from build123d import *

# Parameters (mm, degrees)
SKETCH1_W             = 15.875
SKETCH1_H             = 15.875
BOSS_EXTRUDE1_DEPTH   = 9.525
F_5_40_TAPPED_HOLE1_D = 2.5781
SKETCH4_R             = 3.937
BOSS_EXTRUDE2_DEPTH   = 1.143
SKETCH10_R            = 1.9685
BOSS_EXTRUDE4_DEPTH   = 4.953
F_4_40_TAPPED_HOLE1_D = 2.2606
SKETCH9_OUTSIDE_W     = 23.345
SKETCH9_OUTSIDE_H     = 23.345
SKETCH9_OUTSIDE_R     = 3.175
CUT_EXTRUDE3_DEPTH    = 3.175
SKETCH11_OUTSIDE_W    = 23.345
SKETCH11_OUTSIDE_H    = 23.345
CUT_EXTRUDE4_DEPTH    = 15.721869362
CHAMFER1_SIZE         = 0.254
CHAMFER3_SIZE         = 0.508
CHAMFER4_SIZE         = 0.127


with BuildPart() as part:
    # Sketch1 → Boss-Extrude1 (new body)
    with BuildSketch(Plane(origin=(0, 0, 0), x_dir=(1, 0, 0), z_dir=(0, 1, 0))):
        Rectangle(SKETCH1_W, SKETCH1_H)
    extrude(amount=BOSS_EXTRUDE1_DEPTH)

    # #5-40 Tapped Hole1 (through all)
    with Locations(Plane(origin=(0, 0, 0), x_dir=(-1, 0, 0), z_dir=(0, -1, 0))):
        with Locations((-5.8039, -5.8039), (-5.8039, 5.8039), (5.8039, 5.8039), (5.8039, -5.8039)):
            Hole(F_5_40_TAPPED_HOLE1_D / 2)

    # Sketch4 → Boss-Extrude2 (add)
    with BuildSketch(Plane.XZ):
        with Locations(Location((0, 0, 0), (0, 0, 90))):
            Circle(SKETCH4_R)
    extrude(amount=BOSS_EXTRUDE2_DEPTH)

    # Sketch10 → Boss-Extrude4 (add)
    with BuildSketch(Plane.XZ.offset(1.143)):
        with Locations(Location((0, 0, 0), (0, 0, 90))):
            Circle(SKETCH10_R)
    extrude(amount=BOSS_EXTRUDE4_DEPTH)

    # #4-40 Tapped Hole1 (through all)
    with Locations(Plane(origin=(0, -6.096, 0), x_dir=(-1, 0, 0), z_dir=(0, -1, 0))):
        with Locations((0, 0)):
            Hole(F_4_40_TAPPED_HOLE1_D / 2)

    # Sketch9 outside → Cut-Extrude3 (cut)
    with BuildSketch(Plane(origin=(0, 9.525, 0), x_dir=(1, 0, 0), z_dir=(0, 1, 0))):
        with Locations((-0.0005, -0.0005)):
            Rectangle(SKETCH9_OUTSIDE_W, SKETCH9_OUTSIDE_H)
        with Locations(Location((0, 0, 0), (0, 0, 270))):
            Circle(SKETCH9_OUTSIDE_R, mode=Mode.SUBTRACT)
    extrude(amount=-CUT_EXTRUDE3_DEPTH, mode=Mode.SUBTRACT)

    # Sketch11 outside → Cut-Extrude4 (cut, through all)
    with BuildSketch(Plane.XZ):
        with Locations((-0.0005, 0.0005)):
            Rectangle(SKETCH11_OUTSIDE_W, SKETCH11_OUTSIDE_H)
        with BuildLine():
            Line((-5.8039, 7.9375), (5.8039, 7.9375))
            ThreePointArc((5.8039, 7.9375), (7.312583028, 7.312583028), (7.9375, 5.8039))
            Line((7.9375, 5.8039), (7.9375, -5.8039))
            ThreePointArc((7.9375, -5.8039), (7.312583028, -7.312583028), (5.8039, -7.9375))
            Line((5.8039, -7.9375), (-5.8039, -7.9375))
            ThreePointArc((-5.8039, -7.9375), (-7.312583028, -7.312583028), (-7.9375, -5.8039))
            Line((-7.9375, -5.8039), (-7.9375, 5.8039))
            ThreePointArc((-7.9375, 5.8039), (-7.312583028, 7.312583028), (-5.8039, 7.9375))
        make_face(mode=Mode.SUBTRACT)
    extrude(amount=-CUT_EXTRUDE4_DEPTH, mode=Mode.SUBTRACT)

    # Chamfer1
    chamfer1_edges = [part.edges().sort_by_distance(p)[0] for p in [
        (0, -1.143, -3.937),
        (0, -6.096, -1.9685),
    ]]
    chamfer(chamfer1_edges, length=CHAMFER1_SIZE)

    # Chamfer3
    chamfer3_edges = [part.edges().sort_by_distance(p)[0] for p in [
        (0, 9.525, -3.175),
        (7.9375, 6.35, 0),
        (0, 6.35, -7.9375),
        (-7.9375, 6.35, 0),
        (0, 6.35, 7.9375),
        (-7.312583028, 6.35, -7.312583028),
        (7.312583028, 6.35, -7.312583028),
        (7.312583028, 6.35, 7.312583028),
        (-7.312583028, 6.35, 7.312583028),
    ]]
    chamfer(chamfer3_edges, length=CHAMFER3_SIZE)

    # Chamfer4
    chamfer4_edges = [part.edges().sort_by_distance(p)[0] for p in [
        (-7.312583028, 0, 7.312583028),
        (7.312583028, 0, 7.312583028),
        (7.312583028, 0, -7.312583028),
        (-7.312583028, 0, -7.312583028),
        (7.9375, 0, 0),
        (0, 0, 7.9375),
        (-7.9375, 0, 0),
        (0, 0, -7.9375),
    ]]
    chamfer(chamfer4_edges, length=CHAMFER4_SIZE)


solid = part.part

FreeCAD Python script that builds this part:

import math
import FreeCAD as App
import Part
import Sketcher
Q = App.Units.Quantity


def edges_at(feature, points):
    """Names of the edges that pass closest to the given points."""
    edges = feature.Shape.Edges
    near = lambda p: min(range(len(edges)), key=lambda i: edges[i].distToShape(Part.Vertex(*p))[0])
    return sorted({f"Edge{near(p) + 1}" for p in points})

doc = App.newDocument("Part")
body = doc.addObject("PartDesign::Body", "Body")

# Sketch on XZ plane
sketch1 = body.newObject("Sketcher::SketchObject", "Sketch")
sketch1.AttachmentSupport = (doc.getObject("XZ_Plane"), [""])
sketch1.MapMode = "FlatFace"
sketch1.addGeometry(Part.LineSegment(App.Vector(-7.9375, -7.9375, 0), App.Vector(-7.9375, 7.9375, 0)), False)
sketch1.addGeometry(Part.LineSegment(App.Vector(-7.9375, 7.9375, 0), App.Vector(7.9375, 7.9375, 0)), False)
sketch1.addGeometry(Part.LineSegment(App.Vector(7.9375, 7.9375, 0), App.Vector(7.9375, -7.9375, 0)), False)
sketch1.addGeometry(Part.LineSegment(App.Vector(7.9375, -7.9375, 0), App.Vector(-7.9375, -7.9375, 0)), False)
sketch1.addConstraint(Sketcher.Constraint("Coincident", 0, 2, 1, 1))
sketch1.addConstraint(Sketcher.Constraint("Coincident", 1, 2, 2, 1))
sketch1.addConstraint(Sketcher.Constraint("Coincident", 2, 2, 3, 1))
sketch1.addConstraint(Sketcher.Constraint("Coincident", 3, 2, 0, 1))
sketch1.addConstraint(Sketcher.Constraint("Vertical", 0))
sketch1.addConstraint(Sketcher.Constraint("Horizontal", 1))
sketch1.addConstraint(Sketcher.Constraint("Vertical", 2))
sketch1.addConstraint(Sketcher.Constraint("Horizontal", 3))
sketch1.addConstraint(Sketcher.Constraint("Symmetric", 0, 2, 2, 2, -1, 1))
sketch1.addConstraint(Sketcher.Constraint("Equal", 3, 0))
sketch1.addConstraint(Sketcher.Constraint("DistanceX", 1, 1, 1, 2, Q("0.625 in")))
pad1 = body.newObject("PartDesign::Pad", "Pad")
pad1.Profile = sketch1
pad1.Length = Q("0.375 in")
pad1.Reversed = True

# Sketch on XZ plane
sketch2 = body.newObject("Sketcher::SketchObject", "Sketch001")
sketch2.AttachmentSupport = (doc.getObject("XZ_Plane"), [""])
sketch2.MapMode = "FlatFace"
sketch2.addGeometry(Part.Circle(App.Vector(5.8039, 5.8039, 0), App.Vector(0, 0, 1), 1.28905), False)
sketch2.addGeometry(Part.Circle(App.Vector(5.8039, -5.8039, 0), App.Vector(0, 0, 1), 1.28905), False)
sketch2.addGeometry(Part.Circle(App.Vector(-5.8039, -5.8039, 0), App.Vector(0, 0, 1), 1.28905), False)
sketch2.addGeometry(Part.Circle(App.Vector(-5.8039, 5.8039, 0), App.Vector(0, 0, 1), 1.28905), False)
sketch2.addConstraint(Sketcher.Constraint("Equal", 0, 1))
sketch2.addConstraint(Sketcher.Constraint("Equal", 1, 2))
sketch2.addConstraint(Sketcher.Constraint("Equal", 2, 3))
sketch2.addConstraint(Sketcher.Constraint("Symmetric", 0, 3, 2, 3, -1, 1))
sketch2.addConstraint(Sketcher.Constraint("Symmetric", 1, 3, 3, 3, -1, 1))
sketch2.addConstraint(Sketcher.Constraint("Symmetric", 1, 3, 2, 3, -2))
sketch2.addConstraint(Sketcher.Constraint("Diameter", 0, Q("0.1015 in")))
sketch2.addConstraint(Sketcher.Constraint("DistanceY", 1, 3, 0, 3, Q("0.457 in")))
sketch2.addConstraint(Sketcher.Constraint("DistanceX", 2, 3, 1, 3, Q("0.457 in")))
doc.recompute()
hole = body.newObject("PartDesign::Hole", "Hole")
hole.Profile = sketch2
hole.ThreadType = "None"
hole.Diameter = Q("0.1015 in")
hole.DepthType = "ThroughAll"

# Sketch on XZ plane
sketch3 = body.newObject("Sketcher::SketchObject", "Sketch002")
sketch3.AttachmentSupport = (doc.getObject("XZ_Plane"), [""])
sketch3.MapMode = "FlatFace"
sketch3.addGeometry(Part.Circle(App.Vector(0, 0, 0), App.Vector(0, 0, 1), 3.937), False)
sketch3.addConstraint(Sketcher.Constraint("Coincident", 0, 3, -1, 1))
sketch3.addConstraint(Sketcher.Constraint("Diameter", 0, Q("0.31 in")))
pad2 = body.newObject("PartDesign::Pad", "Pad001")
pad2.Profile = sketch3
pad2.Length = Q("0.045 in")

# Sketch on XZ plane
sketch4 = body.newObject("Sketcher::SketchObject", "Sketch003")
sketch4.AttachmentSupport = (doc.getObject("XZ_Plane"), [""])
sketch4.MapMode = "FlatFace"
sketch4.AttachmentOffset = App.Placement(App.Vector(0, 0, 0.045 * 25.4), App.Rotation())
sketch4.addGeometry(Part.Circle(App.Vector(0, 0, 0), App.Vector(0, 0, 1), 1.9685), False)
sketch4.addConstraint(Sketcher.Constraint("Coincident", 0, 3, -1, 1))
sketch4.addConstraint(Sketcher.Constraint("Diameter", 0, Q("0.155 in")))
pad3 = body.newObject("PartDesign::Pad", "Pad002")
pad3.Profile = sketch4
pad3.Length = Q("0.195 in")

# Sketch on XZ plane
sketch5 = body.newObject("Sketcher::SketchObject", "Sketch004")
sketch5.AttachmentSupport = (doc.getObject("XZ_Plane"), [""])
sketch5.MapMode = "FlatFace"
sketch5.AttachmentOffset = App.Placement(App.Vector(0, 0, 0.24 * 25.4), App.Rotation())
sketch5.addGeometry(Part.Circle(App.Vector(0, 0, 0), App.Vector(0, 0, 1), 1.1303), False)
sketch5.addConstraint(Sketcher.Constraint("Coincident", 0, 3, -1, 1))
sketch5.addConstraint(Sketcher.Constraint("Diameter", 0, Q("0.089 in")))
doc.recompute()
hole2 = body.newObject("PartDesign::Hole", "Hole001")
hole2.Profile = sketch5
hole2.ThreadType = "None"
hole2.Diameter = Q("0.089 in")
hole2.DepthType = "ThroughAll"

# Sketch on XZ plane
sketch6 = body.newObject("Sketcher::SketchObject", "Sketch005")
sketch6.AttachmentSupport = (doc.getObject("XZ_Plane"), [""])
sketch6.MapMode = "FlatFace"
sketch6.AttachmentOffset = App.Placement(App.Vector(0, 0, -0.375 * 25.4), App.Rotation())
sketch6.addGeometry(Part.LineSegment(App.Vector(-11.673, -11.672, 0), App.Vector(-11.673, 11.673, 0)), False)
sketch6.addGeometry(Part.LineSegment(App.Vector(-11.673, 11.673, 0), App.Vector(11.672, 11.673, 0)), False)
sketch6.addGeometry(Part.LineSegment(App.Vector(11.672, 11.673, 0), App.Vector(11.672, -11.672, 0)), False)
sketch6.addGeometry(Part.LineSegment(App.Vector(11.672, -11.672, 0), App.Vector(-11.673, -11.672, 0)), False)
sketch6.addGeometry(Part.Circle(App.Vector(0, 0, 0), App.Vector(0, 0, 1), 3.175), False)
sketch6.addConstraint(Sketcher.Constraint("Coincident", 0, 2, 1, 1))
sketch6.addConstraint(Sketcher.Constraint("Coincident", 1, 2, 2, 1))
sketch6.addConstraint(Sketcher.Constraint("Coincident", 2, 2, 3, 1))
sketch6.addConstraint(Sketcher.Constraint("Coincident", 3, 2, 0, 1))
sketch6.addConstraint(Sketcher.Constraint("Vertical", 0))
sketch6.addConstraint(Sketcher.Constraint("Horizontal", 1))
sketch6.addConstraint(Sketcher.Constraint("Vertical", 2))
sketch6.addConstraint(Sketcher.Constraint("Horizontal", 3))
sketch6.addConstraint(Sketcher.Constraint("Coincident", 4, 3, -1, 1))
sketch6.addConstraint(Sketcher.Constraint("Equal", 3, 0))
sketch6.addConstraint(Sketcher.Constraint("Diameter", 4, Q("0.25 in")))
sketch6.addConstraint(Sketcher.Constraint("DistanceX", 1, 1, 1, 2, 23.345))
sketch6.addConstraint(Sketcher.Constraint("DistanceX", 0, 2, -1, 1, 11.673))
sketch6.addConstraint(Sketcher.Constraint("DistanceY", -1, 1, 0, 2, 11.673))
pocket1 = body.newObject("PartDesign::Pocket", "Pocket")
pocket1.Profile = sketch6
pocket1.Length = Q("0.125 in")
pocket1.Reversed = True

# Sketch on XZ plane
sketch7 = body.newObject("Sketcher::SketchObject", "Sketch006")
sketch7.AttachmentSupport = (doc.getObject("XZ_Plane"), [""])
sketch7.MapMode = "FlatFace"
sketch7.addGeometry(Part.LineSegment(App.Vector(-11.673, 11.673, 0), App.Vector(-11.673, -11.672, 0)), False)
sketch7.addGeometry(Part.LineSegment(App.Vector(-11.673, -11.672, 0), App.Vector(11.672, -11.672, 0)), False)
sketch7.addGeometry(Part.LineSegment(App.Vector(11.672, -11.672, 0), App.Vector(11.672, 11.673, 0)), False)
sketch7.addGeometry(Part.LineSegment(App.Vector(11.672, 11.673, 0), App.Vector(-11.673, 11.673, 0)), False)
sketch7.addGeometry(Part.ArcOfCircle(Part.Circle(App.Vector(-5.8039, 5.8039, 0), App.Vector(0, 0, 1), 2.1336), math.radians(90), math.radians(180)), False)
sketch7.addGeometry(Part.LineSegment(App.Vector(-5.8039, 7.9375, 0), App.Vector(5.8039, 7.9375, 0)), False)
sketch7.addGeometry(Part.ArcOfCircle(Part.Circle(App.Vector(5.8039, 5.8039, 0), App.Vector(0, 0, 1), 2.1336), math.radians(0), math.radians(90)), False)
sketch7.addGeometry(Part.LineSegment(App.Vector(7.9375, 5.8039, 0), App.Vector(7.9375, -5.8039, 0)), False)
sketch7.addGeometry(Part.ArcOfCircle(Part.Circle(App.Vector(5.8039, -5.8039, 0), App.Vector(0, 0, 1), 2.1336), math.radians(-90), math.radians(0)), False)
sketch7.addGeometry(Part.LineSegment(App.Vector(5.8039, -7.9375, 0), App.Vector(-5.8039, -7.9375, 0)), False)
sketch7.addGeometry(Part.ArcOfCircle(Part.Circle(App.Vector(-5.8039, -5.8039, 0), App.Vector(0, 0, 1), 2.1336), math.radians(-180), math.radians(-90)), False)
sketch7.addGeometry(Part.LineSegment(App.Vector(-7.9375, -5.8039, 0), App.Vector(-7.9375, 5.8039, 0)), False)
sketch7.addConstraint(Sketcher.Constraint("Coincident", 0, 2, 1, 1))
sketch7.addConstraint(Sketcher.Constraint("Coincident", 1, 2, 2, 1))
sketch7.addConstraint(Sketcher.Constraint("Coincident", 2, 2, 3, 1))
sketch7.addConstraint(Sketcher.Constraint("Coincident", 3, 2, 0, 1))
sketch7.addConstraint(Sketcher.Constraint("Tangent", 4, 1, 5, 1))
sketch7.addConstraint(Sketcher.Constraint("Tangent", 5, 2, 6, 2))
sketch7.addConstraint(Sketcher.Constraint("Tangent", 6, 1, 7, 1))
sketch7.addConstraint(Sketcher.Constraint("Tangent", 7, 2, 8, 2))
sketch7.addConstraint(Sketcher.Constraint("Tangent", 8, 1, 9, 1))
sketch7.addConstraint(Sketcher.Constraint("Tangent", 9, 2, 10, 2))
sketch7.addConstraint(Sketcher.Constraint("Tangent", 10, 1, 11, 1))
sketch7.addConstraint(Sketcher.Constraint("Tangent", 11, 2, 4, 2))
sketch7.addConstraint(Sketcher.Constraint("Vertical", 0))
sketch7.addConstraint(Sketcher.Constraint("Horizontal", 1))
sketch7.addConstraint(Sketcher.Constraint("Vertical", 2))
sketch7.addConstraint(Sketcher.Constraint("Horizontal", 3))
sketch7.addConstraint(Sketcher.Constraint("Horizontal", 5))
sketch7.addConstraint(Sketcher.Constraint("Vertical", 7))
sketch7.addConstraint(Sketcher.Constraint("Horizontal", 9))
sketch7.addConstraint(Sketcher.Constraint("Vertical", 11))
sketch7.addConstraint(Sketcher.Constraint("Equal", 4, 6))
sketch7.addConstraint(Sketcher.Constraint("Equal", 6, 8))
sketch7.addConstraint(Sketcher.Constraint("Equal", 8, 10))
sketch7.addConstraint(Sketcher.Constraint("Symmetric", 4, 3, 8, 3, -1, 1))
sketch7.addConstraint(Sketcher.Constraint("Equal", 3, 0))
sketch7.addConstraint(Sketcher.Constraint("Equal", 9, 7))
sketch7.addConstraint(Sketcher.Constraint("Radius", 4, Q("0.084 in")))
sketch7.addConstraint(Sketcher.Constraint("DistanceX", 5, 1, 5, 2, Q("0.457 in")))
sketch7.addConstraint(Sketcher.Constraint("DistanceX", 1, 1, 1, 2, 23.345))
sketch7.addConstraint(Sketcher.Constraint("DistanceX", 0, 2, -1, 1, 11.673))
sketch7.addConstraint(Sketcher.Constraint("DistanceY", 0, 2, -1, 1, 11.672))
pocket2 = body.newObject("PartDesign::Pocket", "Pocket001")
pocket2.Profile = sketch7
pocket2.Type = "ThroughAll"
doc.recompute()

chamfer = body.newObject("PartDesign::Chamfer", "Chamfer")
chamfer.Base = (pocket2, edges_at(pocket2, [(0, -1.143, -3.937), (0, -6.096, -1.968)]))
chamfer.Size = Q("0.01 in")
doc.recompute()

chamfer2 = body.newObject("PartDesign::Chamfer", "Chamfer001")
chamfer2.Base = (chamfer, edges_at(chamfer, [
    (0, 9.525, -3.175),
    (7.938, 6.35, 0),
    (0, 6.35, -7.938),
    (-7.938, 6.35, 0),
    (0, 6.35, 7.938),
    (-7.313, 6.35, -7.313),
    (7.313, 6.35, -7.313),
    (7.313, 6.35, 7.313),
    (-7.313, 6.35, 7.313),
]))
chamfer2.Size = Q("0.02 in")
doc.recompute()

chamfer3 = body.newObject("PartDesign::Chamfer", "Chamfer002")
chamfer3.Base = (chamfer2, edges_at(chamfer2, [
    (-7.313, 0, 7.313),
    (7.313, 0, 7.313),
    (7.313, 0, -7.313),
    (-7.313, 0, -7.313),
    (7.938, 0, 0),
    (0, 0, 7.938),
    (-7.938, 0, 0),
    (0, 0, -7.938),
]))
chamfer3.Size = Q("0.005 in")

doc.recompute()
